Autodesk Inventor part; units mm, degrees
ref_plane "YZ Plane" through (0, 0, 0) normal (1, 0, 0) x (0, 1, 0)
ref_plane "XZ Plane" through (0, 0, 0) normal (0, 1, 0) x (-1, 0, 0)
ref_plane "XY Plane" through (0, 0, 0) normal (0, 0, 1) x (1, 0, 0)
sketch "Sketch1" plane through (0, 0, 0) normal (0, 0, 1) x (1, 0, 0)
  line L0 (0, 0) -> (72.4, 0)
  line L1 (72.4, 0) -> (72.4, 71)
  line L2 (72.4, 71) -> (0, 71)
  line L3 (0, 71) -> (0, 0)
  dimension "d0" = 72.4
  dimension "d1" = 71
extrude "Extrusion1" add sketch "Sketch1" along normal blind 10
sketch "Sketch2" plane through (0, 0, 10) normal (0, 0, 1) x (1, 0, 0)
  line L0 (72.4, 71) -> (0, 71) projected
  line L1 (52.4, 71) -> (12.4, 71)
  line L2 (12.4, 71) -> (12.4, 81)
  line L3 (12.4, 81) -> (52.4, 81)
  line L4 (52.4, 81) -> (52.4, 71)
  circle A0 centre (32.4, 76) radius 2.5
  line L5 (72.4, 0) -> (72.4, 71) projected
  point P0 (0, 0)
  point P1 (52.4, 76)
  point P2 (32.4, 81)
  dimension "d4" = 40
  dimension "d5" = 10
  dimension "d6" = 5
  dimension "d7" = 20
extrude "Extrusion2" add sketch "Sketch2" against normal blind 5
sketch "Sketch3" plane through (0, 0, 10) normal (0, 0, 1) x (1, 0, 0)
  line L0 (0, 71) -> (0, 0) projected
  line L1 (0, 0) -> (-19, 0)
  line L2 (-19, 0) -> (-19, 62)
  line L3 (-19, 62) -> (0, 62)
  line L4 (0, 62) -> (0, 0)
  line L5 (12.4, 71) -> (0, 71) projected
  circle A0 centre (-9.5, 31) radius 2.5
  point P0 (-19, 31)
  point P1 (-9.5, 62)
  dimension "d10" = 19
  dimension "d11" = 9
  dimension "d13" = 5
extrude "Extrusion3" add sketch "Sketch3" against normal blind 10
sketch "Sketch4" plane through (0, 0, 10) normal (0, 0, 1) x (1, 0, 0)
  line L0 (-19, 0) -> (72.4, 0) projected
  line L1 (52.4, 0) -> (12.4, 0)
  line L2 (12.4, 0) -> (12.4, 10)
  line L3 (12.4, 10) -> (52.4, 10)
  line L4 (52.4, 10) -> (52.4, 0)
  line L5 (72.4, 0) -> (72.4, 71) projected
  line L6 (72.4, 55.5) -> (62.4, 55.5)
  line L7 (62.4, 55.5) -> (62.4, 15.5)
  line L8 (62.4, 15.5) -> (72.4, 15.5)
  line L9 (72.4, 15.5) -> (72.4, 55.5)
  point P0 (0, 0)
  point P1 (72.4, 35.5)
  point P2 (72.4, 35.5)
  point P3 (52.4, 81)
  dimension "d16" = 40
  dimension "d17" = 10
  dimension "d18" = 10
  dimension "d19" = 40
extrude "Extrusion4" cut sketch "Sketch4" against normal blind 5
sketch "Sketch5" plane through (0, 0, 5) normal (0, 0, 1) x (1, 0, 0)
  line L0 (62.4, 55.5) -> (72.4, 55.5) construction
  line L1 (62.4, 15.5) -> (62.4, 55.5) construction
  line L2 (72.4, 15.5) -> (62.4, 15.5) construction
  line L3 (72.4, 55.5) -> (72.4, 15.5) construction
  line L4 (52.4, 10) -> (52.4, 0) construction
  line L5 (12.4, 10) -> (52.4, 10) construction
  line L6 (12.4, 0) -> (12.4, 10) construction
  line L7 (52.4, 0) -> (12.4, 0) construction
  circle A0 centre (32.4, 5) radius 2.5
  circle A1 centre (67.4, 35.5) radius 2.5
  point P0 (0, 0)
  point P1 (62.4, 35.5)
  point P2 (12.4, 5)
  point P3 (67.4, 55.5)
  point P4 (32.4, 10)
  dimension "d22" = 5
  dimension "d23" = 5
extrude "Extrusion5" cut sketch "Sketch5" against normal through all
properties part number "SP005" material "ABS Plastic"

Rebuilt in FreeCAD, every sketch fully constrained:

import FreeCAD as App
import Part
import Sketcher
from FreeCAD import Vector


def add_polygon(sketch, points):
    """Adds a closed chain of lines whose ends are joined by coincident constraints."""
    first, n = sketch.GeometryCount, len(points)
    for a, b in zip(points, points[1:] + points[:1]):
        sketch.addGeometry(Part.LineSegment(App.Vector(*a, 0), App.Vector(*b, 0)), False)
    for i in range(n):
        sketch.addConstraint(Sketcher.Constraint("Coincident", first + i, 2, first + (i + 1) % n, 1))

doc = App.newDocument("Part")
body = doc.addObject("PartDesign::Body", "Body")

sketch1 = doc.addObject("Sketcher::SketchObject", "Sketch")
body.addObject(sketch1)
sketch1.AttachmentSupport = (doc.XY_Plane, [""])
sketch1.MapMode = "FlatFace"
add_polygon(sketch1, [(0, 71), (0, 0), (72, 0), (72, 71)])
sketch1.addConstraint(Sketcher.Constraint("Vertical", 0))
sketch1.addConstraint(Sketcher.Constraint("Horizontal", 1))
sketch1.addConstraint(Sketcher.Constraint("Vertical", 2))
sketch1.addConstraint(Sketcher.Constraint("Horizontal", 3))
sketch1.addConstraint(Sketcher.Constraint("Coincident", 0, 2, -1, 1))
sketch1.addConstraint(Sketcher.Constraint("DistanceY", 0, 2, 0, 1, 71.0))
sketch1.addConstraint(Sketcher.Constraint("DistanceX", 1, 1, 1, 2, 72.4))
pad1 = doc.addObject("PartDesign::Pad", "Pad")
body.addObject(pad1)
pad1.Profile = sketch1
pad1.Length = 10

sketch2 = doc.addObject("Sketcher::SketchObject", "Sketch001")
body.addObject(sketch2)
sketch2.AttachmentSupport = (doc.XY_Plane, [""])
sketch2.MapMode = "FlatFace"
sketch2.AttachmentOffset = App.Placement(Vector(0, 0, 10), App.Rotation())
add_polygon(sketch2, [(12.4, 71), (52.4, 71), (52.4, 81), (12.4, 81)])
sketch2.addGeometry(Part.Circle(Vector(32.4, 76, 0), Vector(0, 0, 1), 2.5), False)
sketch2.addConstraint(Sketcher.Constraint("Horizontal", 0))
sketch2.addConstraint(Sketcher.Constraint("Vertical", 1))
sketch2.addConstraint(Sketcher.Constraint("Horizontal", 2))
sketch2.addConstraint(Sketcher.Constraint("Vertical", 3))
sketch2.addConstraint(Sketcher.Constraint("Diameter", 4, 5.0))
sketch2.addConstraint(Sketcher.Constraint("DistanceX", 0, 1, 0, 2, 40.0))
sketch2.addConstraint(Sketcher.Constraint("DistanceY", 1, 1, 1, 2, 10.0))
sketch2.addConstraint(Sketcher.Constraint("DistanceX", 4, 3, 0, 2, 20.0))
sketch2.addConstraint(Sketcher.Constraint("DistanceY", 0, 2, 4, 3, 5.0))
sketch2.addConstraint(Sketcher.Constraint("DistanceY", -1, 1, 4, 3, 76.0))
sketch2.addConstraint(Sketcher.Constraint("DistanceX", -1, 1, 4, 3, 32.4))
pad2 = doc.addObject("PartDesign::Pad", "Pad001")
body.addObject(pad2)
pad2.Profile = sketch2
pad2.Length = 5
pad2.Reversed = True

sketch3 = doc.addObject("Sketcher::SketchObject", "Sketch002")
body.addObject(sketch3)
sketch3.AttachmentSupport = (doc.XY_Plane, [""])
sketch3.MapMode = "FlatFace"
sketch3.AttachmentOffset = App.Placement(Vector(0, 0, 10), App.Rotation())
add_polygon(sketch3, [(0, 0), (0, 62), (-19, 62), (-19, 0)])
sketch3.addGeometry(Part.Circle(Vector(-9.5, 31, 0), Vector(0, 0, 1), 2.5), False)
sketch3.addConstraint(Sketcher.Constraint("Vertical", 0))
sketch3.addConstraint(Sketcher.Constraint("Horizontal", 1))
sketch3.addConstraint(Sketcher.Constraint("Vertical", 2))
sketch3.addConstraint(Sketcher.Constraint("Horizontal", 3))
sketch3.addConstraint(Sketcher.Constraint("Coincident", 3, 2, -1, 1))
sketch3.addConstraint(Sketcher.Constraint("Diameter", 4, 5.0))
sketch3.addConstraint(Sketcher.Constraint("DistanceX", 1, 2, 1, 1, 19.0))
sketch3.addConstraint(Sketcher.Constraint("DistanceY", 0, 1, 0, 2, 62.0))
sketch3.addConstraint(Sketcher.Constraint("DistanceY", -1, 1, 4, 3, 31.0))
sketch3.addConstraint(Sketcher.Constraint("DistanceX", 4, 3, -1, 1, 9.5))
pad3 = doc.addObject("PartDesign::Pad", "Pad002")
body.addObject(pad3)
pad3.Profile = sketch3
pad3.Length = 10
pad3.Reversed = True

sketch4 = doc.addObject("Sketcher::SketchObject", "Sketch003")
body.addObject(sketch4)
sketch4.AttachmentSupport = (doc.XY_Plane, [""])
sketch4.MapMode = "FlatFace"
sketch4.AttachmentOffset = App.Placement(Vector(0, 0, 10), App.Rotation())
add_polygon(sketch4, [(12, 10), (12, 0), (52, 0), (52, 10)])
add_polygon(sketch4, [(62, 16), (72, 16), (72, 56), (62, 56)])
sketch4.addConstraint(Sketcher.Constraint("Vertical", 0))
sketch4.addConstraint(Sketcher.Constraint("Horizontal", 1))
sketch4.addConstraint(Sketcher.Constraint("Vertical", 2))
sketch4.addConstraint(Sketcher.Constraint("Horizontal", 3))
sketch4.addConstraint(Sketcher.Constraint("Horizontal", 4))
sketch4.addConstraint(Sketcher.Constraint("Vertical", 5))
sketch4.addConstraint(Sketcher.Constraint("Horizontal", 6))
sketch4.addConstraint(Sketcher.Constraint("Vertical", 7))
sketch4.addConstraint(Sketcher.Constraint("PointOnObject", 0, 2, -1))
sketch4.addConstraint(Sketcher.Constraint("Equal", 6, 0))
sketch4.addConstraint(Sketcher.Constraint("Equal", 3, 5))
sketch4.addConstraint(Sketcher.Constraint("DistanceX", 1, 1, 1, 2, 40.0))
sketch4.addConstraint(Sketcher.Constraint("DistanceX", 4, 1, 4, 2, 10.0))
sketch4.addConstraint(Sketcher.Constraint("DistanceX", 2, 2, 6, 2, 10.0))
sketch4.addConstraint(Sketcher.Constraint("DistanceX", -1, 1, 0, 2, 12.4))
sketch4.addConstraint(Sketcher.Constraint("DistanceY", -1, 1, 4, 2, 15.5))
pocket1 = doc.addObject("PartDesign::Pocket", "Pocket")
body.addObject(pocket1)
pocket1.Profile = sketch4
pocket1.Length = 5

sketch5 = doc.addObject("Sketcher::SketchObject", "Sketch004")
body.addObject(sketch5)
sketch5.AttachmentSupport = (doc.XY_Plane, [""])
sketch5.MapMode = "FlatFace"
sketch5.AttachmentOffset = App.Placement(Vector(0, 0, 5), App.Rotation())
sketch5.addGeometry(Part.Circle(Vector(32.4, 5, 0), Vector(0, 0, 1), 2.5), False)
sketch5.addGeometry(Part.Circle(Vector(67.4, 35.5, 0), Vector(0, 0, 1), 2.5), False)
sketch5.addConstraint(Sketcher.Constraint("Equal", 0, 1))
sketch5.addConstraint(Sketcher.Constraint("Diameter", 0, 5.0))
sketch5.addConstraint(Sketcher.Constraint("DistanceY", -1, 1, 0, 3, 5.0))
sketch5.addConstraint(Sketcher.Constraint("DistanceX", 0, 3, 1, 3, 35.0))
sketch5.addConstraint(Sketcher.Constraint("DistanceX", -1, 1, 0, 3, 32.4))
sketch5.addConstraint(Sketcher.Constraint("DistanceY", -1, 1, 1, 3, 35.5))
pocket2 = doc.addObject("PartDesign::Pocket", "Pocket001")
body.addObject(pocket2)
pocket2.Profile = sketch5
pocket2.Type = "ThroughAll"

doc.recompute()
